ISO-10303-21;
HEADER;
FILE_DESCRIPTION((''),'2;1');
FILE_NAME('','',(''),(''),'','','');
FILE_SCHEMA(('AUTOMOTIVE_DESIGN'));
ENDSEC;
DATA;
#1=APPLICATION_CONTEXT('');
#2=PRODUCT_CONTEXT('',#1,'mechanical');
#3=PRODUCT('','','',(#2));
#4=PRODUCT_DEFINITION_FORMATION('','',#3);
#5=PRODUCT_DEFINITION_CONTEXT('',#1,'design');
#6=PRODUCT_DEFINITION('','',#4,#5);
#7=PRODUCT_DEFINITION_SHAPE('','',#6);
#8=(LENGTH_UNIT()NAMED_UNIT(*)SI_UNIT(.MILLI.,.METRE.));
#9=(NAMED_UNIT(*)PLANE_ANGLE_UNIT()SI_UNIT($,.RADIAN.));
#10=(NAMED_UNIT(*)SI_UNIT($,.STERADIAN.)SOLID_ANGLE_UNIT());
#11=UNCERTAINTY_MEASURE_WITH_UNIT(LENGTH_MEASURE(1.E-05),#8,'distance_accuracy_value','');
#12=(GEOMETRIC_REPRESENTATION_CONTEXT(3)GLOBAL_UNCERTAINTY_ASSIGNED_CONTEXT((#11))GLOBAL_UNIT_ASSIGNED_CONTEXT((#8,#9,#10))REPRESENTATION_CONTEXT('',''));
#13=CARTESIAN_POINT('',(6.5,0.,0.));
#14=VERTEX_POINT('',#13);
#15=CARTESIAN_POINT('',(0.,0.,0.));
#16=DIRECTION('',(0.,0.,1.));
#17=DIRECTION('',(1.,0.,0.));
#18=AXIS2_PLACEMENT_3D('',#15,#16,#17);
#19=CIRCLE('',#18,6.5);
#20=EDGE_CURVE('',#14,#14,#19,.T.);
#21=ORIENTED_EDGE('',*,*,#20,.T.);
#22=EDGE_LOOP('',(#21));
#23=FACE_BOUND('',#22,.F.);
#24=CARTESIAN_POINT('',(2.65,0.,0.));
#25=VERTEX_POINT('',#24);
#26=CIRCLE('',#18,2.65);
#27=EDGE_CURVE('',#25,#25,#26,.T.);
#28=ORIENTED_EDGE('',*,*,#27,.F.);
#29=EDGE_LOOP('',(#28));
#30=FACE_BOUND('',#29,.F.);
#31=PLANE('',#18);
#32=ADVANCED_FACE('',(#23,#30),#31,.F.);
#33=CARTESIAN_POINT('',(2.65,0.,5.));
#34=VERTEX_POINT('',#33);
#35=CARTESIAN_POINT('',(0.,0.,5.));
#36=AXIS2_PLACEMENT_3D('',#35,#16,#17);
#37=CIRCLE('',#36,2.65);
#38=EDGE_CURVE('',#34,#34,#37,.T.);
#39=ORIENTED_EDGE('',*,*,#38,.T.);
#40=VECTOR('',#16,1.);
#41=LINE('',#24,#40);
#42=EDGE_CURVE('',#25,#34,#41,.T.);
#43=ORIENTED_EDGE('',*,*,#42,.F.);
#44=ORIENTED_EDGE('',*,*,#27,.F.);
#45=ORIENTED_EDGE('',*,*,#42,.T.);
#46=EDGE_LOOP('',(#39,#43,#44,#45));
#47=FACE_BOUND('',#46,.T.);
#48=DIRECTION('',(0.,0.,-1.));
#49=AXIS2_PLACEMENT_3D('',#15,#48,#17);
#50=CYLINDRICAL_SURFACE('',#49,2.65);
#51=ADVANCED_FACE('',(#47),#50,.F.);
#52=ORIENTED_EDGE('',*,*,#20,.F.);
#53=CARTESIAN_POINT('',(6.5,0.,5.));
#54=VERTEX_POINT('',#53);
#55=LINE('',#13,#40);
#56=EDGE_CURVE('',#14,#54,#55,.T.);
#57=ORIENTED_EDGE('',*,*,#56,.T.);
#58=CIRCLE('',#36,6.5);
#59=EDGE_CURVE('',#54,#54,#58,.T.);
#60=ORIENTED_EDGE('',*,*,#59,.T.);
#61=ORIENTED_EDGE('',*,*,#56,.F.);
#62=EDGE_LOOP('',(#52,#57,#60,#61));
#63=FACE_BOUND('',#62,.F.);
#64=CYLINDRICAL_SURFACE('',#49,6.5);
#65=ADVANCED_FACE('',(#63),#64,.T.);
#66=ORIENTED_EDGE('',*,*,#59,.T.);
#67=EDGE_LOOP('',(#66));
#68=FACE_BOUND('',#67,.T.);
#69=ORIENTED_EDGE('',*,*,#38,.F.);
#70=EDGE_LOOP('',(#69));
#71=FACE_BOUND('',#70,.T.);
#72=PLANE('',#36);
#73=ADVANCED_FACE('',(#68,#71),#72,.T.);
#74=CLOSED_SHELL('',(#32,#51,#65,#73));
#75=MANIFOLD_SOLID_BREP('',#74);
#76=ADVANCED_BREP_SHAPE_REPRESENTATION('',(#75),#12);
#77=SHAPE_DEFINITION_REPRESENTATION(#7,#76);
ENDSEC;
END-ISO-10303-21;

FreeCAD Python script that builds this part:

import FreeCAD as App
import Part
import Sketcher
from FreeCAD import Vector

doc = App.newDocument("Part")
body = doc.addObject("PartDesign::Body", "Body")

# Sketch on XY plane
sketch1 = body.newObject("Sketcher::SketchObject", "Sketch")
sketch1.AttachmentSupport = (doc.getObject("XY_Plane"), [""])
sketch1.MapMode = "FlatFace"
sketch1.addGeometry([
    Part.Circle(Vector(0, 0, 0), Vector(0, 0, 1), 6.5),
    Part.Circle(Vector(0, 0, 0), Vector(0, 0, 1), 2.6),
], False)
sketch1.addConstraint([
    Sketcher.Constraint("Coincident", 0, 3, -1, 1),
    Sketcher.Constraint("Coincident", 1, 3, -1, 1),
    Sketcher.Constraint("Diameter", 0, 13.0),
    Sketcher.Constraint("Diameter", 1, 5.3),
])
pad1 = body.newObject("PartDesign::Pad", "Pad")
pad1.Profile = sketch1
pad1.Length = 5

doc.recompute()
